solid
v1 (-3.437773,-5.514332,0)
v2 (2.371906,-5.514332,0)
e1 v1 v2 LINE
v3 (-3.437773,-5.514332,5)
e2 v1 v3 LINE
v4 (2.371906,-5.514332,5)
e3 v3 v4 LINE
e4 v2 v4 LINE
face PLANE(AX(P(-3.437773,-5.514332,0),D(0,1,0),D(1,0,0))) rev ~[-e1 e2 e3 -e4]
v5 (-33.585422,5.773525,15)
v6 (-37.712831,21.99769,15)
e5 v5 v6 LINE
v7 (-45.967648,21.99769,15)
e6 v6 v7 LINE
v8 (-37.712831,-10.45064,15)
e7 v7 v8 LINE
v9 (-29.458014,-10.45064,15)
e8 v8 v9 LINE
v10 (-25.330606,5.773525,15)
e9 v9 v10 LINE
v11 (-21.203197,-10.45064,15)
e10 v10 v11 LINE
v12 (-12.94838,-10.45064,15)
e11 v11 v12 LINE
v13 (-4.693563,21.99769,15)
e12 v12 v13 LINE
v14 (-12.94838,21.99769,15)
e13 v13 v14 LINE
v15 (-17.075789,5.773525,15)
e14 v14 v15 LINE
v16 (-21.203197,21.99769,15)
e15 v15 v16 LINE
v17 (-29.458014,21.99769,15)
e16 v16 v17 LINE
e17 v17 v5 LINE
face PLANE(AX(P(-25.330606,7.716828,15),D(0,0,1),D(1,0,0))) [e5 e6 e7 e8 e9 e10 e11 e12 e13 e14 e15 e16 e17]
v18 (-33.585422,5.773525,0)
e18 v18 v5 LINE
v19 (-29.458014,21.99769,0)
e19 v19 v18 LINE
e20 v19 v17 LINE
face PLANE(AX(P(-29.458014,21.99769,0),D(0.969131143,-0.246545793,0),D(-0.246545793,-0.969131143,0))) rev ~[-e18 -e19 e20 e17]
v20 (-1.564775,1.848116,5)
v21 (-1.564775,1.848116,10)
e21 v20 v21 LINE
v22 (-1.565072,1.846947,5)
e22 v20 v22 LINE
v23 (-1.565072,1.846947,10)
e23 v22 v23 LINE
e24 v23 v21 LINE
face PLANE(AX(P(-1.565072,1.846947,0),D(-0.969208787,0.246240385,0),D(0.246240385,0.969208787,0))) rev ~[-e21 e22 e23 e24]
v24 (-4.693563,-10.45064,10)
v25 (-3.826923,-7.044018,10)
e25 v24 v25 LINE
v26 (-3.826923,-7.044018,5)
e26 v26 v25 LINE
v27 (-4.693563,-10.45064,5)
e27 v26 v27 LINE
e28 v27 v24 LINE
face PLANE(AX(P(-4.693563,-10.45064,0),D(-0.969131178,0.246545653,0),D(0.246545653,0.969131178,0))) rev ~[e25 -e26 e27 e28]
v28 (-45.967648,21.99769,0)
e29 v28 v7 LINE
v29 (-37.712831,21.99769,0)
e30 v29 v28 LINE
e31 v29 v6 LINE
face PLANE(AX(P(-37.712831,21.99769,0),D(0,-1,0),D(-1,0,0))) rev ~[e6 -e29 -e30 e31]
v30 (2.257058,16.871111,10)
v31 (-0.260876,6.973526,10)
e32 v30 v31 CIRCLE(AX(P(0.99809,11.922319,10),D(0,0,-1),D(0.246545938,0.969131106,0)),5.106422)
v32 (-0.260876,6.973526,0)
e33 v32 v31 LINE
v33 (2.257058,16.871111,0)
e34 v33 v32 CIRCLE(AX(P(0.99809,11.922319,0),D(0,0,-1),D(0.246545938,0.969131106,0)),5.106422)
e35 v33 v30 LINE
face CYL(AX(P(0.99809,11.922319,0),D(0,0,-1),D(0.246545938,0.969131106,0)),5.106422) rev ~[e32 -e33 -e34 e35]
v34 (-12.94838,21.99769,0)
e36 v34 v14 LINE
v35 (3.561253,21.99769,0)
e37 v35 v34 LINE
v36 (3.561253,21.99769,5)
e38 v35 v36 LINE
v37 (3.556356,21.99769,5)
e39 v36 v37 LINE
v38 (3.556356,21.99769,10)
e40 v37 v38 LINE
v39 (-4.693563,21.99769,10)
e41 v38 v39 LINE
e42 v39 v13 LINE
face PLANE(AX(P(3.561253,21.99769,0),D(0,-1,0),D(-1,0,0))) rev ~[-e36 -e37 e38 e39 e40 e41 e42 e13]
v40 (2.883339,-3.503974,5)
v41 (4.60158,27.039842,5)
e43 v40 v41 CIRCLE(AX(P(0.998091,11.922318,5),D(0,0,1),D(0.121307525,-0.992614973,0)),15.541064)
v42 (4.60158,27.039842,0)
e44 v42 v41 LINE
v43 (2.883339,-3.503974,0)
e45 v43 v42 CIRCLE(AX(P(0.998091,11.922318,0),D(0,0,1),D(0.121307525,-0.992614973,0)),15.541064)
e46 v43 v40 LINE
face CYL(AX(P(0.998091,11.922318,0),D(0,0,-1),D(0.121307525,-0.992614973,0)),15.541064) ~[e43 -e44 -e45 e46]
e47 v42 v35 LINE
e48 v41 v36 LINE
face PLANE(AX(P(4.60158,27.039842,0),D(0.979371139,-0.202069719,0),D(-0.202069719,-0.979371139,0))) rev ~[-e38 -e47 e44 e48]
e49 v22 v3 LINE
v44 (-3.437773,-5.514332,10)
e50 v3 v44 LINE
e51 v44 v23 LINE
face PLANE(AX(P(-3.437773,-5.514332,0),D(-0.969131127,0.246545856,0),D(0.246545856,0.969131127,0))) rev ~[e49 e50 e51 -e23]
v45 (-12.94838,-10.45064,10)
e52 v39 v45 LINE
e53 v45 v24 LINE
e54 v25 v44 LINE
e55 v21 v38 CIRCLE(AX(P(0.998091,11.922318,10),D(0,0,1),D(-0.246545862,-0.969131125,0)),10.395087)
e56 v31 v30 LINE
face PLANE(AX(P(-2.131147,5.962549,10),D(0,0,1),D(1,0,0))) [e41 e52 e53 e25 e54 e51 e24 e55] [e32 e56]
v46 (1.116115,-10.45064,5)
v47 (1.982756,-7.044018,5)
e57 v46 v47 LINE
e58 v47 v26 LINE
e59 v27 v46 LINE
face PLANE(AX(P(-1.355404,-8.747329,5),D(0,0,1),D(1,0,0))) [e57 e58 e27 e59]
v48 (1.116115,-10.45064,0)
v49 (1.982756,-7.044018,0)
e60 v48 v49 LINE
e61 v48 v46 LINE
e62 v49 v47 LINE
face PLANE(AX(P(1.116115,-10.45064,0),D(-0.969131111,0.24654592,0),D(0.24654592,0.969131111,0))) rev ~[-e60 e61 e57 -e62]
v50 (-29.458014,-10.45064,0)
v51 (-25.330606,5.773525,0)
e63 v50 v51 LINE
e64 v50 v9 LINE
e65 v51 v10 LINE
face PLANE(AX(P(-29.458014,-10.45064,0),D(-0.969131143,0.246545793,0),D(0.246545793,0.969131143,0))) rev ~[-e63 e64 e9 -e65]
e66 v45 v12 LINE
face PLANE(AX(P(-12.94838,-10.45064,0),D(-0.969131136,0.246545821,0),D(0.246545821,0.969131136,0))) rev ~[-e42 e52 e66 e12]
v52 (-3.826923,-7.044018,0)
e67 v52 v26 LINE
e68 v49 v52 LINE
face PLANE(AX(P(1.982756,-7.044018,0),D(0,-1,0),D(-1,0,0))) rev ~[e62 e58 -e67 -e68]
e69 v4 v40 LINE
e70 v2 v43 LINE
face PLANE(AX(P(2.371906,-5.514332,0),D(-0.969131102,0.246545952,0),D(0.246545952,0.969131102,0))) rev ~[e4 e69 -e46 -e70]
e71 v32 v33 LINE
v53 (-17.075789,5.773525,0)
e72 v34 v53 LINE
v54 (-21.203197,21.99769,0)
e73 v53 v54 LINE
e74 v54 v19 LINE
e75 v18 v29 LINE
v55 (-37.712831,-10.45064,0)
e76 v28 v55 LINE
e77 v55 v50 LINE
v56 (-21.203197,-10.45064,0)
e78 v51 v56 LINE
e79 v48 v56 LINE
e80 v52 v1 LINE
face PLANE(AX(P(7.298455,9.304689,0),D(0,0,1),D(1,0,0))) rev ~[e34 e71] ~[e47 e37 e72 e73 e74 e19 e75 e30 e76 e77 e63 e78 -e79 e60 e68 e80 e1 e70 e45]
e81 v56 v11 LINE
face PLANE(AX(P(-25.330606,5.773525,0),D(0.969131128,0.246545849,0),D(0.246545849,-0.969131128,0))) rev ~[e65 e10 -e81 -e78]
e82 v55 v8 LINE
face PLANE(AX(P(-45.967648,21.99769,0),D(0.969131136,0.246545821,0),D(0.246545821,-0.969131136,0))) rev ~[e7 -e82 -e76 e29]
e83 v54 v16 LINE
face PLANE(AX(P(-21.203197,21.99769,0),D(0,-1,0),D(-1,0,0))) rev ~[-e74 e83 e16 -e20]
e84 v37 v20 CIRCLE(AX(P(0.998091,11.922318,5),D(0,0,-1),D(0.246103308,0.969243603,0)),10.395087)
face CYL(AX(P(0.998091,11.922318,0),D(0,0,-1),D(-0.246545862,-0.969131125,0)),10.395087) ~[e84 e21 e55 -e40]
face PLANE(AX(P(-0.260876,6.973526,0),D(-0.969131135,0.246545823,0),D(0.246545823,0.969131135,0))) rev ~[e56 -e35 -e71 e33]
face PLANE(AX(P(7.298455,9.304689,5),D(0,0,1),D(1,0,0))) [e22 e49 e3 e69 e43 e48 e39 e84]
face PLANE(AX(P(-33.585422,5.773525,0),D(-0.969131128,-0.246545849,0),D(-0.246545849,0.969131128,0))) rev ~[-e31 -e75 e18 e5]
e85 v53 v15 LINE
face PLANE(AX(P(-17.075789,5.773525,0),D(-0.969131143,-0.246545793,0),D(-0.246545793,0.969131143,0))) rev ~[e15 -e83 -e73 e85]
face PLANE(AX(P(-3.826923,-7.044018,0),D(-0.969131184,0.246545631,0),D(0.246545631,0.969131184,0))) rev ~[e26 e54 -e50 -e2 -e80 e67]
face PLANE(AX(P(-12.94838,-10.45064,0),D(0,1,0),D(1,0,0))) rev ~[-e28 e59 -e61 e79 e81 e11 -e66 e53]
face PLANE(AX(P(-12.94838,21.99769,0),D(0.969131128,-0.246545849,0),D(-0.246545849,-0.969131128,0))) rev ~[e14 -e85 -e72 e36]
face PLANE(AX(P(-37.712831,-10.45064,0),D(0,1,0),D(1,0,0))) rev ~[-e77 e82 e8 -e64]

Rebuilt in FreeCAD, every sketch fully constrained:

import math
import FreeCAD as App
import Part
import Sketcher

doc = App.newDocument("Part")
body = doc.addObject("PartDesign::Body", "Body")

sketch1 = body.newObject("Sketcher::SketchObject", "Sketch")
sketch1.AttachmentSupport = (doc.getObject("XY_Plane"), [""])
sketch1.MapMode = "FlatFace"
sketch1.addGeometry(Part.LineSegment(App.Vector(-38, 22, 0), App.Vector(-46, 22, 0)), False)
sketch1.addGeometry(Part.LineSegment(App.Vector(-46, 22, 0), App.Vector(-38, -10, 0)), False)
sketch1.addGeometry(Part.LineSegment(App.Vector(-38, -10, 0), App.Vector(-29, -10, 0)), False)
sketch1.addGeometry(Part.LineSegment(App.Vector(-29, -10, 0), App.Vector(-25, 6, 0)), False)
sketch1.addGeometry(Part.LineSegment(App.Vector(-25, 6, 0), App.Vector(-21, -10, 0)), False)
sketch1.addGeometry(Part.LineSegment(App.Vector(-21, -10, 0), App.Vector(-13, -10, 0)), False)
sketch1.addGeometry(Part.LineSegment(App.Vector(-13, -10, 0), App.Vector(-5, 22, 0)), False)
sketch1.addGeometry(Part.LineSegment(App.Vector(-5, 22, 0), App.Vector(-13, 22, 0)), False)
sketch1.addGeometry(Part.LineSegment(App.Vector(-13, 22, 0), App.Vector(-17, 6, 0)), False)
sketch1.addGeometry(Part.LineSegment(App.Vector(-17, 6, 0), App.Vector(-21, 22, 0)), False)
sketch1.addGeometry(Part.LineSegment(App.Vector(-21, 22, 0), App.Vector(-29, 22, 0)), False)
sketch1.addGeometry(Part.LineSegment(App.Vector(-29, 22, 0), App.Vector(-34, 6, 0)), False)
sketch1.addGeometry(Part.LineSegment(App.Vector(-34, 6, 0), App.Vector(-38, 22, 0)), False)
sketch1.addConstraint(Sketcher.Constraint("Coincident", 0, 2, 1, 1))
sketch1.addConstraint(Sketcher.Constraint("Coincident", 1, 2, 2, 1))
sketch1.addConstraint(Sketcher.Constraint("Coincident", 2, 2, 3, 1))
sketch1.addConstraint(Sketcher.Constraint("Coincident", 3, 2, 4, 1))
sketch1.addConstraint(Sketcher.Constraint("Coincident", 4, 2, 5, 1))
sketch1.addConstraint(Sketcher.Constraint("Coincident", 5, 2, 6, 1))
sketch1.addConstraint(Sketcher.Constraint("Coincident", 6, 2, 7, 1))
sketch1.addConstraint(Sketcher.Constraint("Coincident", 7, 2, 8, 1))
sketch1.addConstraint(Sketcher.Constraint("Coincident", 8, 2, 9, 1))
sketch1.addConstraint(Sketcher.Constraint("Coincident", 9, 2, 10, 1))
sketch1.addConstraint(Sketcher.Constraint("Coincident", 10, 2, 11, 1))
sketch1.addConstraint(Sketcher.Constraint("Coincident", 11, 2, 12, 1))
sketch1.addConstraint(Sketcher.Constraint("Coincident", 12, 2, 0, 1))
sketch1.addConstraint(Sketcher.Constraint("Horizontal", 0))
sketch1.addConstraint(Sketcher.Constraint("Horizontal", 2))
sketch1.addConstraint(Sketcher.Constraint("Horizontal", 5))
sketch1.addConstraint(Sketcher.Constraint("Horizontal", 7))
sketch1.addConstraint(Sketcher.Constraint("Horizontal", 10))
sketch1.addConstraint(Sketcher.Constraint("Parallel", 1, 4))
sketch1.addConstraint(Sketcher.Constraint("Parallel", 3, 6))
sketch1.addConstraint(Sketcher.Constraint("Parallel", 6, 8))
sketch1.addConstraint(Sketcher.Constraint("Parallel", 4, 9))
sketch1.addConstraint(Sketcher.Constraint("Parallel", 8, 11))
sketch1.addConstraint(Sketcher.Constraint("Parallel", 9, 12))
sketch1.addConstraint(Sketcher.Constraint("Horizontal", 2, 2, 4, 2))
sketch1.addConstraint(Sketcher.Constraint("Horizontal", 0, 2, 6, 2))
sketch1.addConstraint(Sketcher.Constraint("Horizontal", 3, 2, 8, 2))
sketch1.addConstraint(Sketcher.Constraint("Horizontal", 7, 2, 9, 2))
sketch1.addConstraint(Sketcher.Constraint("Horizontal", 8, 2, 11, 2))
sketch1.addConstraint(Sketcher.Constraint("Vertical", 5, 2, 7, 2))
sketch1.addConstraint(Sketcher.Constraint("Vertical", 4, 2, 9, 2))
sketch1.addConstraint(Sketcher.Constraint("Vertical", 2, 2, 10, 2))
sketch1.addConstraint(Sketcher.Constraint("Vertical", 1, 2, 12, 2))
sketch1.addConstraint(Sketcher.Constraint("Equal", 0, 2))
sketch1.addConstraint(Sketcher.Constraint("Equal", 5, 7))
sketch1.addConstraint(Sketcher.Constraint("Distance", 3, 16.740939))
sketch1.addConstraint(Sketcher.Constraint("DistanceX", 0, 2, 0, 1, 8.254817))
sketch1.addConstraint(Sketcher.Constraint("DistanceY", -1, 1, 0, 2, 21.99769))
sketch1.addConstraint(Sketcher.Constraint("DistanceX", 1, 2, -1, 1, 37.712831))
pad1 = body.newObject("PartDesign::Pad", "Pad")
pad1.Profile = sketch1
pad1.Length = 15

sketch2 = body.newObject("Sketcher::SketchObject", "Sketch001")
sketch2.AttachmentSupport = (doc.getObject("XY_Plane"), [""])
sketch2.MapMode = "FlatFace"
sketch2.addGeometry(Part.LineSegment(App.Vector(-4.6936, 21.9977, 0), App.Vector(-12.9484, -10.4506, 0)), False)
sketch2.addGeometry(Part.LineSegment(App.Vector(-12.9484, -10.4506, 0), App.Vector(-4.6936, -10.4506, 0)), False)
sketch2.addGeometry(Part.LineSegment(App.Vector(-4.6936, -10.4506, 0), App.Vector(-3.8269, -7.044, 0)), False)
sketch2.addGeometry(Part.LineSegment(App.Vector(-3.8269, -7.044, 0), App.Vector(-3.4378, -5.5143, 0)), False)
sketch2.addGeometry(Part.LineSegment(App.Vector(-3.4378, -5.5143, 0), App.Vector(-1.5651, 1.8469, 0)), False)
sketch2.addGeometry(Part.LineSegment(App.Vector(-1.5651, 1.8469, 0), App.Vector(-1.5648, 1.8481, 0)), False)
sketch2.addGeometry(Part.ArcOfCircle(Part.Circle(App.Vector(0.9981, 11.9223, 0), App.Vector(0, 0, 1), 10.3951), math.radians(-104), math.radians(76)), False)
sketch2.addGeometry(Part.LineSegment(App.Vector(3.5564, 21.9977, 0), App.Vector(-4.6936, 21.9977, 0)), False)
sketch2.addGeometry(Part.LineSegment(App.Vector(-0.2609, 6.9735, 0), App.Vector(2.2571, 16.8711, 0)), False)
sketch2.addGeometry(Part.ArcOfCircle(Part.Circle(App.Vector(0.9981, 11.9223, 0), App.Vector(0, 0, 1), 5.1064), math.radians(-104), math.radians(76)), False)
sketch2.addConstraint(Sketcher.Constraint("Coincident", 0, 2, 1, 1))
sketch2.addConstraint(Sketcher.Constraint("Coincident", 1, 2, 2, 1))
sketch2.addConstraint(Sketcher.Constraint("Coincident", 2, 2, 3, 1))
sketch2.addConstraint(Sketcher.Constraint("Coincident", 3, 2, 4, 1))
sketch2.addConstraint(Sketcher.Constraint("Coincident", 4, 2, 5, 1))
sketch2.addConstraint(Sketcher.Constraint("Coincident", 5, 2, 6, 1))
sketch2.addConstraint(Sketcher.Constraint("Coincident", 6, 2, 7, 1))
sketch2.addConstraint(Sketcher.Constraint("Coincident", 7, 2, 0, 1))
sketch2.addConstraint(Sketcher.Constraint("Coincident", 8, 1, 9, 1))
sketch2.addConstraint(Sketcher.Constraint("Coincident", 9, 2, 8, 2))
sketch2.addConstraint(Sketcher.Constraint("Horizontal", 1))
sketch2.addConstraint(Sketcher.Constraint("Horizontal", 7))
sketch2.addConstraint(Sketcher.Constraint("Coincident", 9, 3, 6, 3))
sketch2.addConstraint(Sketcher.Constraint("Parallel", 0, 2))
sketch2.addConstraint(Sketcher.Constraint("Parallel", 2, 3))
sketch2.addConstraint(Sketcher.Constraint("Parallel", 3, 4))
sketch2.addConstraint(Sketcher.Constraint("Parallel", 4, 8))
sketch2.addConstraint(Sketcher.Constraint("Vertical", 1, 2, 7, 2))
sketch2.addConstraint(Sketcher.Constraint("Radius", 9, 5.106422))
sketch2.addConstraint(Sketcher.Constraint("Radius", 6, 10.395087))
sketch2.addConstraint(Sketcher.Constraint("DistanceX", 7, 2, 7, 1, 8.249919))
sketch2.addConstraint(Sketcher.Constraint("DistanceX", 3, 2, 4, 2, 1.872701))
sketch2.addConstraint(Sketcher.Constraint("DistanceX", 5, 2, 8, 1, 1.303899))
sketch2.addConstraint(Sketcher.Constraint("DistanceX", 9, 2, 6, 2, 1.299298))
sketch2.addConstraint(Sketcher.Constraint("Distance", 2, 3.51513))
sketch2.addConstraint(Sketcher.Constraint("Distance", 3, 1.57841))
sketch2.addConstraint(Sketcher.Constraint("Distance", 4, 7.595751))
sketch2.addConstraint(Sketcher.Constraint("DistanceX", 1, 1, 1, 2, 8.254817))
sketch2.addConstraint(Sketcher.Constraint("DistanceX", -1, 1, 6, 3, 0.998091))
sketch2.addConstraint(Sketcher.Constraint("DistanceY", -1, 1, 6, 3, 11.922318))
sketch2.addConstraint(Sketcher.Constraint("DistanceX", 0, 2, -1, 1, 12.94838))
pad2 = body.newObject("PartDesign::Pad", "Pad001")
pad2.Profile = sketch2
pad2.Length = 10

sketch3 = body.newObject("Sketcher::SketchObject", "Sketch002")
sketch3.AttachmentSupport = (doc.getObject("XY_Plane"), [""])
sketch3.MapMode = "FlatFace"
sketch3.addGeometry(Part.LineSegment(App.Vector(3.5613, 21.9977, 0), App.Vector(3.5564, 21.9977, 0)), False)
sketch3.addGeometry(Part.ArcOfCircle(Part.Circle(App.Vector(0.9981, 11.9223, 0), App.Vector(0, 0, 1), 10.3951), math.radians(-104), math.radians(76)), False)
sketch3.addGeometry(Part.LineSegment(App.Vector(-1.5648, 1.8481, 0), App.Vector(-1.5651, 1.8469, 0)), False)
sketch3.addGeometry(Part.LineSegment(App.Vector(-1.5651, 1.8469, 0), App.Vector(-3.4378, -5.5143, 0)), False)
sketch3.addGeometry(Part.LineSegment(App.Vector(-3.4378, -5.5143, 0), App.Vector(2.3719, -5.5143, 0)), False)
sketch3.addGeometry(Part.LineSegment(App.Vector(2.3719, -5.5143, 0), App.Vector(2.8833, -3.504, 0)), False)
sketch3.addGeometry(Part.ArcOfCircle(Part.Circle(App.Vector(0.9981, 11.9223, 0), App.Vector(0, 0, 1), 15.5411), math.radians(-83), math.radians(77)), False)
sketch3.addGeometry(Part.LineSegment(App.Vector(4.6016, 27.0398, 0), App.Vector(3.5613, 21.9977, 0)), False)
sketch3.addGeometry(Part.LineSegment(App.Vector(-3.8269, -7.044, 0), App.Vector(-4.6936, -10.4506, 0)), False)
sketch3.addGeometry(Part.LineSegment(App.Vector(-4.6936, -10.4506, 0), App.Vector(1.1161, -10.4506, 0)), False)
sketch3.addGeometry(Part.LineSegment(App.Vector(1.1161, -10.4506, 0), App.Vector(1.9828, -7.044, 0)), False)
sketch3.addGeometry(Part.LineSegment(App.Vector(1.9828, -7.044, 0), App.Vector(-3.8269, -7.044, 0)), False)
sketch3.addConstraint(Sketcher.Constraint("Coincident", 0, 2, 1, 2))
sketch3.addConstraint(Sketcher.Constraint("Coincident", 1, 1, 2, 1))
sketch3.addConstraint(Sketcher.Constraint("Coincident", 2, 2, 3, 1))
sketch3.addConstraint(Sketcher.Constraint("Coincident", 3, 2, 4, 1))
sketch3.addConstraint(Sketcher.Constraint("Coincident", 4, 2, 5, 1))
sketch3.addConstraint(Sketcher.Constraint("Coincident", 5, 2, 6, 1))
sketch3.addConstraint(Sketcher.Constraint("Coincident", 6, 2, 7, 1))
sketch3.addConstraint(Sketcher.Constraint("Coincident", 7, 2, 0, 1))
sketch3.addConstraint(Sketcher.Constraint("Coincident", 8, 2, 9, 1))
sketch3.addConstraint(Sketcher.Constraint("Coincident", 9, 2, 10, 1))
sketch3.addConstraint(Sketcher.Constraint("Coincident", 10, 2, 11, 1))
sketch3.addConstraint(Sketcher.Constraint("Coincident", 11, 2, 8, 1))
sketch3.addConstraint(Sketcher.Constraint("Horizontal", 0))
sketch3.addConstraint(Sketcher.Constraint("Horizontal", 4))
sketch3.addConstraint(Sketcher.Constraint("Horizontal", 9))
sketch3.addConstraint(Sketcher.Constraint("Horizontal", 11))
sketch3.addConstraint(Sketcher.Constraint("Coincident", 6, 3, 1, 3))
sketch3.addConstraint(Sketcher.Constraint("Parallel", 3, 5))
sketch3.addConstraint(Sketcher.Constraint("Parallel", 5, 8))
sketch3.addConstraint(Sketcher.Constraint("Parallel", 8, 10))
sketch3.addConstraint(Sketcher.Constraint("Equal", 4, 9))
sketch3.addConstraint(Sketcher.Constraint("Radius", 1, 10.395087))
sketch3.addConstraint(Sketcher.Constraint("Radius", 6, 15.541064))
sketch3.addConstraint(Sketcher.Constraint("DistanceX", 3, 2, 1, 1, 1.872998))
sketch3.addConstraint(Sketcher.Constraint("DistanceX", 4, 1, 4, 2, 5.809679))
sketch3.addConstraint(Sketcher.Constraint("DistanceX", 3, 2, 2, 2, 1.872701))
sketch3.addConstraint(Sketcher.Constraint("Distance", 3, 7.595751))
sketch3.addConstraint(Sketcher.Constraint("Distance", 8, 3.51513))
sketch3.addConstraint(Sketcher.Constraint("DistanceX", 0, 2, 0, 1, 0.004897))
sketch3.addConstraint(Sketcher.Constraint("DistanceX", -1, 1, 1, 3, 0.998091))
sketch3.addConstraint(Sketcher.Constraint("DistanceY", -1, 1, 1, 3, 11.922318))
sketch3.addConstraint(Sketcher.Constraint("DistanceY", -1, 1, 0, 2, 21.99769))
sketch3.addConstraint(Sketcher.Constraint("DistanceY", 3, 2, -1, 1, 5.514332))
sketch3.addConstraint(Sketcher.Constraint("DistanceX", -1, 1, 5, 2, 2.883339))
sketch3.addConstraint(Sketcher.Constraint("DistanceX", -1, 1, 6, 2, 4.60158))
sketch3.addConstraint(Sketcher.Constraint("DistanceY", 8, 2, -1, 1, 10.45064))
sketch3.addConstraint(Sketcher.Constraint("DistanceX", 8, 2, 3, 2, 1.25579))
pad3 = body.newObject("PartDesign::Pad", "Pad002")
pad3.Profile = sketch3
pad3.Length = 5

doc.recompute()
